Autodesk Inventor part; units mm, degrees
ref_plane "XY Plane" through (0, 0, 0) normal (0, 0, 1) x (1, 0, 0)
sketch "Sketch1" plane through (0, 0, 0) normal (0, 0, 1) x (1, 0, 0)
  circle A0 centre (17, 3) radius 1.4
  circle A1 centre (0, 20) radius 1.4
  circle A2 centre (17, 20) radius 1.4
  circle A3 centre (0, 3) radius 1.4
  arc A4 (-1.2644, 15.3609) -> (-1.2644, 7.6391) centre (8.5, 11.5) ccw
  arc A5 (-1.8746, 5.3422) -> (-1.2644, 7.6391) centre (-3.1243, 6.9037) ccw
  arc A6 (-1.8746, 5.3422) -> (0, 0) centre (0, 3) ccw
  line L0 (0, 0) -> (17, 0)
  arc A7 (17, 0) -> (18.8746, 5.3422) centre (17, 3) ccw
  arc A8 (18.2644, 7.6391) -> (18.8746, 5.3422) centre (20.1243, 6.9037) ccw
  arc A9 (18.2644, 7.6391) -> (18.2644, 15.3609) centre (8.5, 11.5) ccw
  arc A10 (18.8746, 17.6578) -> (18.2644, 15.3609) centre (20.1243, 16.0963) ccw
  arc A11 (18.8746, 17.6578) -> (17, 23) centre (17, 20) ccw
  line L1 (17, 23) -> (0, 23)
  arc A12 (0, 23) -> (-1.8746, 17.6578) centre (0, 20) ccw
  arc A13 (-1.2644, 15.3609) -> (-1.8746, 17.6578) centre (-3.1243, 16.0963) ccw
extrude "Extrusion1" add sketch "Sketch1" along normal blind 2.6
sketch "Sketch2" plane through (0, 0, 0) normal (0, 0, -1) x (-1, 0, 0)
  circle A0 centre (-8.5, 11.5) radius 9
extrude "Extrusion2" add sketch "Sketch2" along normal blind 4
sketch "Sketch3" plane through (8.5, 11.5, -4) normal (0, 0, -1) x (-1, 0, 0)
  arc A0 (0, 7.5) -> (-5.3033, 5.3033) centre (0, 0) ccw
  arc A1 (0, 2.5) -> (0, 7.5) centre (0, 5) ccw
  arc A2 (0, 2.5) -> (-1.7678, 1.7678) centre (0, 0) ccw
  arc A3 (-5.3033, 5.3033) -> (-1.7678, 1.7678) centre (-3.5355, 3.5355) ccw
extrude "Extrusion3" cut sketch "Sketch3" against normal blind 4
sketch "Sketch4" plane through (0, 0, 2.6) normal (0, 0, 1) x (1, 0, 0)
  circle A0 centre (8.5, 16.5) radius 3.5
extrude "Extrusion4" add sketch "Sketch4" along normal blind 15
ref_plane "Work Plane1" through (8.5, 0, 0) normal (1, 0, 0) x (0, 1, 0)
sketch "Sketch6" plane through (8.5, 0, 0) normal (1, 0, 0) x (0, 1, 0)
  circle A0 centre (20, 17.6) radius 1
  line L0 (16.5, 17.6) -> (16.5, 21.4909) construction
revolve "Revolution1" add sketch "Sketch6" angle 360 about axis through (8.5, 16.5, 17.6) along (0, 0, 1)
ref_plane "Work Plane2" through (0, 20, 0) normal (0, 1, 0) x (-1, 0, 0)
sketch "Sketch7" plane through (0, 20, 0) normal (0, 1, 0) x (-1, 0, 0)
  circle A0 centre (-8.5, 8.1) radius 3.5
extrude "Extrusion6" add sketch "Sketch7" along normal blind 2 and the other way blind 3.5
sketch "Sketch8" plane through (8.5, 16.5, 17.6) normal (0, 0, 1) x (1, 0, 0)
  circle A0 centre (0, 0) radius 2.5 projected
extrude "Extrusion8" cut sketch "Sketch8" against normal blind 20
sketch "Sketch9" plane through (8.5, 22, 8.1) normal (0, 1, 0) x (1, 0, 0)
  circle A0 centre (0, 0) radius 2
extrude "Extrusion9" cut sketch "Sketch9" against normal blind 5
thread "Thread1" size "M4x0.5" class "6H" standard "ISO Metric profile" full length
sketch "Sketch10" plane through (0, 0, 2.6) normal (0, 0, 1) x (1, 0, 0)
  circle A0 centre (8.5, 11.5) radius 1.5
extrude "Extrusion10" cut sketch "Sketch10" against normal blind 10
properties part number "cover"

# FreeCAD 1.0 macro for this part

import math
import FreeCAD as App
import Part
import Sketcher

V = App.Vector
Q = App.Units.Quantity

doc = App.newDocument("Part")
body = doc.addObject("PartDesign::Body", "Body")

sketch1 = body.newObject("Sketcher::SketchObject", "Sketch")
sketch1.AttachmentSupport = (doc.getObject("XY_Plane"), [""])
sketch1.MapMode = "FlatFace"
sketch1.addGeometry([
    Part.ArcOfCircle(Part.Circle(V(-3.1, 16.1, 0), V(0, 0, 1), 2), math.radians(-22), math.radians(51)),
    Part.ArcOfCircle(Part.Circle(V(8.5, 11.5, 0), V(0, 0, 1), 10.5), math.radians(158), math.radians(202)),
    Part.ArcOfCircle(Part.Circle(V(-3.1, 6.9, 0), V(0, 0, 1), 2), math.radians(-51), math.radians(22)),
    Part.ArcOfCircle(Part.Circle(V(0, 3, 0), V(0, 0, 1), 3), math.radians(129), math.radians(270)),
    Part.LineSegment(V(0, 0, 0), V(17, 0, 0)),
    Part.ArcOfCircle(Part.Circle(V(17, 3, 0), V(0, 0, 1), 3), math.radians(-90), math.radians(51)),
    Part.ArcOfCircle(Part.Circle(V(20.1, 6.9, 0), V(0, 0, 1), 2), math.radians(158), math.radians(231)),
    Part.ArcOfCircle(Part.Circle(V(8.5, 11.5, 0), V(0, 0, 1), 10.5), math.radians(-22), math.radians(22)),
    Part.ArcOfCircle(Part.Circle(V(20.1, 16.1, 0), V(0, 0, 1), 2), math.radians(129), math.radians(202)),
    Part.ArcOfCircle(Part.Circle(V(17, 20, 0), V(0, 0, 1), 3), math.radians(-51), math.radians(90)),
    Part.LineSegment(V(17, 23, 0), V(0, 23, 0)),
    Part.ArcOfCircle(Part.Circle(V(0, 20, 0), V(0, 0, 1), 3), math.radians(90), math.radians(231)),
    Part.Circle(V(0, 3, 0), V(0, 0, 1), 1.4),
    Part.Circle(V(17, 3, 0), V(0, 0, 1), 1.4),
    Part.Circle(V(0, 20, 0), V(0, 0, 1), 1.4),
    Part.Circle(V(17, 20, 0), V(0, 0, 1), 1.4),
], False)
sketch1.addConstraint([
    Sketcher.Constraint("Tangent", 0, 1, 1, 1),
    Sketcher.Constraint("Tangent", 1, 2, 2, 2),
    Sketcher.Constraint("Tangent", 2, 1, 3, 1),
    Sketcher.Constraint("Tangent", 3, 2, 4, 1),
    Sketcher.Constraint("Tangent", 4, 2, 5, 1),
    Sketcher.Constraint("Tangent", 5, 2, 6, 2),
    Sketcher.Constraint("Tangent", 6, 1, 7, 1),
    Sketcher.Constraint("Tangent", 7, 2, 8, 2),
    Sketcher.Constraint("Tangent", 8, 1, 9, 1),
    Sketcher.Constraint("Tangent", 9, 2, 10, 1),
    Sketcher.Constraint("Tangent", 10, 2, 11, 1),
    Sketcher.Constraint("Tangent", 11, 2, 0, 2),
    Sketcher.Constraint("Horizontal", 4),
    Sketcher.Constraint("Horizontal", 10),
    Sketcher.Constraint("Coincident", 3, 2, -1, 1),
    Sketcher.Constraint("Coincident", 7, 3, 1, 3),
    Sketcher.Constraint("Coincident", 12, 3, 3, 3),
    Sketcher.Constraint("Coincident", 13, 3, 5, 3),
    Sketcher.Constraint("Coincident", 14, 3, 11, 3),
    Sketcher.Constraint("Coincident", 15, 3, 9, 3),
    Sketcher.Constraint("Equal", 0, 2),
    Sketcher.Constraint("Equal", 3, 5),
    Sketcher.Constraint("Equal", 2, 6),
    Sketcher.Constraint("Equal", 1, 7),
    Sketcher.Constraint("Equal", 6, 8),
    Sketcher.Constraint("Equal", 5, 9),
    Sketcher.Constraint("Equal", 9, 11),
    Sketcher.Constraint("Equal", 12, 13),
    Sketcher.Constraint("Equal", 13, 14),
    Sketcher.Constraint("Equal", 14, 15),
    Sketcher.Constraint("PointOnObject", 11, 3, -2),
    Sketcher.Constraint("Horizontal", 2, 3, 6, 3),
    Sketcher.Constraint("Horizontal", 0, 3, 8, 3),
    Sketcher.Constraint("Vertical", 0, 3, 2, 3),
    Sketcher.Constraint("Radius", 0, Q("2 mm")),
    Sketcher.Constraint("Radius", 3, Q("3 mm")),
    Sketcher.Constraint("Diameter", 12, Q("2.8 mm")),
    Sketcher.Constraint("Radius", 1, Q("10.5 mm")),
    Sketcher.Constraint("DistanceX", 4, 1, 4, 2, Q("17 mm")),
    Sketcher.Constraint("DistanceY", -1, 1, 9, 3, Q("20 mm")),
])
pad1 = body.newObject("PartDesign::Pad", "Pad")
pad1.Profile = sketch1
pad1.Length = 2.6

sketch2 = body.newObject("Sketcher::SketchObject", "Sketch001")
sketch2.AttachmentSupport = (doc.getObject("XY_Plane"), [""])
sketch2.MapMode = "FlatFace"
sketch2.addGeometry(Part.Circle(V(8, 12, 0), V(0, 0, 1), 9), False)
sketch2.addConstraint([
    Sketcher.Constraint("Diameter", 0, Q("18 mm")),
    Sketcher.Constraint("DistanceX", -1, 1, 0, 3, Q("8.5 mm")),
    Sketcher.Constraint("DistanceY", -1, 1, 0, 3, Q("11.5 mm")),
])
pad2 = body.newObject("PartDesign::Pad", "Pad001")
pad2.Profile = sketch2
pad2.Length = 4
pad2.Reversed = True

sketch3 = body.newObject("Sketcher::SketchObject", "Sketch002")
sketch3.AttachmentSupport = (doc.getObject("XY_Plane"), [""])
sketch3.MapMode = "FlatFace"
sketch3.AttachmentOffset = App.Placement(V(0, 0, -4), App.Rotation())
sketch3.addGeometry([
    Part.ArcOfCircle(Part.Circle(V(8.5, 16.5, 0), V(0, 0, 1), 2.5), math.radians(90), math.radians(270)),
    Part.ArcOfCircle(Part.Circle(V(8.5, 11.5, 0), V(0, 0, 1), 7.5), math.radians(45), math.radians(90)),
    Part.ArcOfCircle(Part.Circle(V(12, 15, 0), V(0, 0, 1), 2.5), math.radians(-135), math.radians(45)),
    Part.ArcOfCircle(Part.Circle(V(8.5, 11.5, 0), V(0, 0, 1), 2.5), math.radians(45), math.radians(90)),
], False)
sketch3.addConstraint([
    Sketcher.Constraint("Tangent", 0, 1, 1, 2),
    Sketcher.Constraint("Tangent", 1, 1, 2, 2),
    Sketcher.Constraint("Tangent", 2, 1, 3, 1),
    Sketcher.Constraint("Tangent", 3, 2, 0, 2),
    Sketcher.Constraint("Coincident", 3, 3, 1, 3),
    Sketcher.Constraint("Equal", 2, 3),
    Sketcher.Constraint("Vertical", 0, 3, 1, 3),
    Sketcher.Constraint("Radius", 0, Q("2.5 mm")),
    Sketcher.Constraint("DistanceY", -1, 1, 0, 1, Q("19 mm")),
    Sketcher.Constraint("DistanceX", -1, 1, 0, 3, Q("8.5 mm")),
    Sketcher.Constraint("DistanceX", -1, 1, 2, 3, Q("12.0355 mm")),
])
pocket1 = body.newObject("PartDesign::Pocket", "Pocket")
pocket1.Profile = sketch3
pocket1.Length = 4
pocket1.Reversed = True

sketch4 = body.newObject("Sketcher::SketchObject", "Sketch003")
sketch4.AttachmentSupport = (doc.getObject("XY_Plane"), [""])
sketch4.MapMode = "FlatFace"
sketch4.AttachmentOffset = App.Placement(V(0, 0, 2.6), App.Rotation())
sketch4.addGeometry(Part.Circle(V(8.5, 16.5, 0), V(0, 0, 1), 3.5), False)
sketch4.addConstraint([
    Sketcher.Constraint("Diameter", 0, Q("7 mm")),
    Sketcher.Constraint("DistanceX", -1, 1, 0, 3, Q("8.5 mm")),
    Sketcher.Constraint("DistanceY", -1, 1, 0, 3, Q("16.5 mm")),
])
pad3 = body.newObject("PartDesign::Pad", "Pad002")
pad3.Profile = sketch4
pad3.Length = 15

sketch5 = body.newObject("Sketcher::SketchObject", "Sketch004")
sketch5.AttachmentSupport = (doc.getObject("YZ_Plane"), [""])
sketch5.MapMode = "FlatFace"
sketch5.AttachmentOffset = App.Placement(V(0, 0, 8.5), App.Rotation())
sketch5.addGeometry(Part.Circle(V(20, 17.6, 0), V(0, 0, 1), 1), False)
sketch5.addGeometry(Part.LineSegment(V(16.5, 17.6, 0), V(16.5, 27.6, 0)), True)
sketch5.addConstraint([
    Sketcher.Constraint("Vertical", 1),
    Sketcher.Constraint("Horizontal", 0, 3, 1, 1),
    Sketcher.Constraint("Diameter", 0, Q("2 mm")),
    Sketcher.Constraint("DistanceY", 1, 1, 1, 2, Q("10 mm")),
    Sketcher.Constraint("DistanceX", -1, 1, 0, 3, Q("20 mm")),
    Sketcher.Constraint("DistanceY", -1, 1, 0, 3, Q("17.6 mm")),
    Sketcher.Constraint("DistanceX", -1, 1, 1, 1, Q("16.5 mm")),
])
revolution = body.newObject("PartDesign::Revolution", "Revolution")
revolution.Profile = sketch5
revolution.ReferenceAxis = (sketch5, ["Axis0"])
revolution.Angle = 360

sketch6 = body.newObject("Sketcher::SketchObject", "Sketch005")
sketch6.AttachmentSupport = (doc.getObject("XZ_Plane"), [""])
sketch6.MapMode = "FlatFace"
sketch6.AttachmentOffset = App.Placement(V(0, 0, -20), App.Rotation())
sketch6.addGeometry(Part.Circle(V(8.5, 8.1, 0), V(0, 0, 1), 3.5), False)
sketch6.addConstraint([
    Sketcher.Constraint("Diameter", 0, Q("7 mm")),
    Sketcher.Constraint("DistanceX", -1, 1, 0, 3, Q("8.5 mm")),
    Sketcher.Constraint("DistanceY", -1, 1, 0, 3, Q("8.1 mm")),
])
pad4 = body.newObject("PartDesign::Pad", "Pad003")
pad4.Profile = sketch6
pad4.Type = "TwoLengths"
pad4.Length = 2
pad4.Length2 = 3.5
pad4.Reversed = True

sketch7 = body.newObject("Sketcher::SketchObject", "Sketch006")
sketch7.AttachmentSupport = (doc.getObject("XY_Plane"), [""])
sketch7.MapMode = "FlatFace"
sketch7.AttachmentOffset = App.Placement(V(0, 0, 17.6), App.Rotation())
sketch7.addGeometry(Part.Circle(V(8.5, 16.5, 0), V(0, 0, 1), 2.5), False)
sketch7.addConstraint([
    Sketcher.Constraint("Diameter", 0, Q("5 mm")),
    Sketcher.Constraint("DistanceX", -1, 1, 0, 3, Q("8.5 mm")),
    Sketcher.Constraint("DistanceY", -1, 1, 0, 3, Q("16.5 mm")),
])
pocket2 = body.newObject("PartDesign::Pocket", "Pocket001")
pocket2.Profile = sketch7
pocket2.Length = 20

sketch8 = body.newObject("Sketcher::SketchObject", "Sketch007")
sketch8.AttachmentSupport = (doc.getObject("XZ_Plane"), [""])
sketch8.MapMode = "FlatFace"
sketch8.AttachmentOffset = App.Placement(V(0, 0, -22), App.Rotation())
sketch8.addGeometry(Part.Circle(V(8.5, 8.1, 0), V(0, 0, 1), 2), False)
sketch8.addConstraint([
    Sketcher.Constraint("Diameter", 0, Q("4 mm")),
    Sketcher.Constraint("DistanceX", -1, 1, 0, 3, Q("8.5 mm")),
    Sketcher.Constraint("DistanceY", -1, 1, 0, 3, Q("8.1 mm")),
])
pocket3 = body.newObject("PartDesign::Pocket", "Pocket002")
pocket3.Profile = sketch8
pocket3.Length = 5
pocket3.Reversed = True

sketch9 = body.newObject("Sketcher::SketchObject", "Sketch008")
sketch9.AttachmentSupport = (doc.getObject("XY_Plane"), [""])
sketch9.MapMode = "FlatFace"
sketch9.AttachmentOffset = App.Placement(V(0, 0, 2.6), App.Rotation())
sketch9.addGeometry(Part.Circle(V(8.5, 11.5, 0), V(0, 0, 1), 1.5), False)
sketch9.addConstraint([
    Sketcher.Constraint("Diameter", 0, Q("3 mm")),
    Sketcher.Constraint("DistanceX", -1, 1, 0, 3, Q("8.5 mm")),
    Sketcher.Constraint("DistanceY", -1, 1, 0, 3, Q("11.5 mm")),
])
pocket4 = body.newObject("PartDesign::Pocket", "Pocket003")
pocket4.Profile = sketch9
pocket4.Length = 10

doc.recompute()
